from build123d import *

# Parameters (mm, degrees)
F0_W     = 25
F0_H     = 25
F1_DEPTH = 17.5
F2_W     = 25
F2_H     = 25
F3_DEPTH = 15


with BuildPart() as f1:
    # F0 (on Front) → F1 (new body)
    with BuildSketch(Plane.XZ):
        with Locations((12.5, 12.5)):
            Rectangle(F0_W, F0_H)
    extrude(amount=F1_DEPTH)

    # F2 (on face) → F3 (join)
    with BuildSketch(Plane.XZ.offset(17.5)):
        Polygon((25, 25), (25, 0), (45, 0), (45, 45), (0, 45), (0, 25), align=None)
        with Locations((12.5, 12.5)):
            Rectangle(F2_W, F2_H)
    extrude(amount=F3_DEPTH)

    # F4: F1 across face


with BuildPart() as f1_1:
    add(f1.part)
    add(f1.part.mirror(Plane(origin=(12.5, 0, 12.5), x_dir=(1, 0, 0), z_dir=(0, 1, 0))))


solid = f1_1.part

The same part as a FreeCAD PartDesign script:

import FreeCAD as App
import Part
import Sketcher


def add_polygon(sketch, points):
    """Adds a closed chain of lines whose ends are joined by coincident constraints."""
    first, n = sketch.GeometryCount, len(points)
    for a, b in zip(points, points[1:] + points[:1]):
        sketch.addGeometry(Part.LineSegment(App.Vector(*a, 0), App.Vector(*b, 0)), False)
    for i in range(n):
        sketch.addConstraint(Sketcher.Constraint("Coincident", first + i, 2, first + (i + 1) % n, 1))

doc = App.newDocument("Part")
body = doc.addObject("PartDesign::Body", "Body")

# Sketch on XZ plane
sketch1 = doc.addObject("Sketcher::SketchObject", "Sketch")
body.addObject(sketch1)
sketch1.AttachmentSupport = (doc.XZ_Plane, [""])
sketch1.MapMode = "FlatFace"
add_polygon(sketch1, [(0, 25), (0, 0), (25, 0), (25, 25)])  # lines 0-3
sketch1.addConstraint(Sketcher.Constraint("Vertical", 0))
sketch1.addConstraint(Sketcher.Constraint("Horizontal", 1))
sketch1.addConstraint(Sketcher.Constraint("Vertical", 2))
sketch1.addConstraint(Sketcher.Constraint("Horizontal", 3))
sketch1.addConstraint(Sketcher.Constraint("Coincident", 0, 2, -1, 1))
sketch1.addConstraint(Sketcher.Constraint("Equal", 3, 0))
sketch1.addConstraint(Sketcher.Constraint("DistanceX", 1, 1, 1, 2, 25.0))
pad1 = doc.addObject("PartDesign::Pad", "Pad")
body.addObject(pad1)
pad1.Profile = sketch1
pad1.Length = 17.5

# Sketch on XZ plane
sketch2 = doc.addObject("Sketcher::SketchObject", "Sketch001")
body.addObject(sketch2)
sketch2.AttachmentSupport = (doc.XZ_Plane, [""])
sketch2.MapMode = "FlatFace"
sketch2.AttachmentOffset = App.Placement(App.Vector(0, 0, 17.5), App.Rotation())
add_polygon(sketch2, [(45, 0), (45, 45), (0, 45), (0, 0)])  # lines 0-3
sketch2.addConstraint(Sketcher.Constraint("Vertical", 0))
sketch2.addConstraint(Sketcher.Constraint("Horizontal", 1))
sketch2.addConstraint(Sketcher.Constraint("Vertical", 2))
sketch2.addConstraint(Sketcher.Constraint("Horizontal", 3))
sketch2.addConstraint(Sketcher.Constraint("Coincident", 2, 2, -1, 1))
sketch2.addConstraint(Sketcher.Constraint("Equal", 3, 0))
sketch2.addConstraint(Sketcher.Constraint("DistanceX", 1, 2, 1, 1, 45.0))
pad2 = doc.addObject("PartDesign::Pad", "Pad001")
body.addObject(pad2)
pad2.Profile = sketch2
pad2.Length = 15
body2 = doc.addObject("PartDesign::Body", "Body001")
doc.recompute()

body2.BaseFeature = body
doc.recompute()

mirroring = doc.addObject("Part::Mirroring", "Mirroring")
mirroring.Source = body
mirroring.Base = App.Vector(12.5, 0, 12.5)
mirroring.Normal = App.Vector(0, 1, 0)
body3 = doc.addObject("PartDesign::Body", "Body002")
body3.BaseFeature = mirroring
boolean = doc.addObject("PartDesign::Boolean", "Boolean")
body2.addObject(boolean)
boolean.Type = "Fuse"
boolean.addObjects([body3])
doc.recompute()
mirroring.Visibility = False

doc.recompute()
